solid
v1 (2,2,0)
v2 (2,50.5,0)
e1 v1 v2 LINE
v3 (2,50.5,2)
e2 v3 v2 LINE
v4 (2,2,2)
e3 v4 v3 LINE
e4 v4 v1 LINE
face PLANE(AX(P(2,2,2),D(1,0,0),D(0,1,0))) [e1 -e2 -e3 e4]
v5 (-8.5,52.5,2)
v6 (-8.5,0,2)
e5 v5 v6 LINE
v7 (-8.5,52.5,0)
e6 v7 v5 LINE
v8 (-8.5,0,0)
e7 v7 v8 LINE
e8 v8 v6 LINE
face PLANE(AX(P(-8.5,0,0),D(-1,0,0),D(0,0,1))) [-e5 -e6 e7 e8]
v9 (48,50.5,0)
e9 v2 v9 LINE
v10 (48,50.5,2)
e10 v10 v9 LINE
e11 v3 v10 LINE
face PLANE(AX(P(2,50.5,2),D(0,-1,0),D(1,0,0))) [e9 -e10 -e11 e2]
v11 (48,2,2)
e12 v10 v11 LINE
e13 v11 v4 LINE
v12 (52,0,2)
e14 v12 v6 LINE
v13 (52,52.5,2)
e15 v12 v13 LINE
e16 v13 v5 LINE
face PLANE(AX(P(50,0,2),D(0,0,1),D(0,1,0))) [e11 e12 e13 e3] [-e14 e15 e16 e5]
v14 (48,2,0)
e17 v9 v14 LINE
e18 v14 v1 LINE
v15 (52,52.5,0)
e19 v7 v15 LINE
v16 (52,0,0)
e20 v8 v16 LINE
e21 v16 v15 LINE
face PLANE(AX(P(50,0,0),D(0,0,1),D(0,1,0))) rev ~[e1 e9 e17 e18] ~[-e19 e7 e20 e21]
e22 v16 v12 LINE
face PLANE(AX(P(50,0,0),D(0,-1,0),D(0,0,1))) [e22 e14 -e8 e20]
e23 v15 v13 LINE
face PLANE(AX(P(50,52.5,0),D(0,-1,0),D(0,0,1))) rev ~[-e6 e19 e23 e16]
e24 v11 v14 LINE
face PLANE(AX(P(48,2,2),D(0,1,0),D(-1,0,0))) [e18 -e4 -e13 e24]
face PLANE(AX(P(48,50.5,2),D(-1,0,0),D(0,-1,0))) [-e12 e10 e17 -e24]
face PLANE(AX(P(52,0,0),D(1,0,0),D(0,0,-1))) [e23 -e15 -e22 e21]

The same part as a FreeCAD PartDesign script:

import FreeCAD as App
import Part
import Sketcher
Q = App.Units.Quantity

doc = App.newDocument("Part")
body = doc.addObject("PartDesign::Body", "Body")

# Sketch on XY plane
sketch1 = body.newObject("Sketcher::SketchObject", "Sketch")
sketch1.AttachmentSupport = (doc.getObject("XY_Plane"), [""])
sketch1.MapMode = "FlatFace"
sketch1.addGeometry(Part.LineSegment(App.Vector(0, 52, 0), App.Vector(0, 0, 0)), False)
sketch1.addGeometry(Part.LineSegment(App.Vector(0, 0, 0), App.Vector(50, 0, 0)), False)
sketch1.addGeometry(Part.LineSegment(App.Vector(50, 0, 0), App.Vector(50, 52, 0)), False)
sketch1.addGeometry(Part.LineSegment(App.Vector(50, 52, 0), App.Vector(0, 52, 0)), False)
sketch1.addConstraint(Sketcher.Constraint("Coincident", 0, 2, 1, 1))
sketch1.addConstraint(Sketcher.Constraint("Coincident", 1, 2, 2, 1))
sketch1.addConstraint(Sketcher.Constraint("Coincident", 2, 2, 3, 1))
sketch1.addConstraint(Sketcher.Constraint("Coincident", 3, 2, 0, 1))
sketch1.addConstraint(Sketcher.Constraint("Vertical", 0))
sketch1.addConstraint(Sketcher.Constraint("Horizontal", 1))
sketch1.addConstraint(Sketcher.Constraint("Vertical", 2))
sketch1.addConstraint(Sketcher.Constraint("Horizontal", 3))
sketch1.addConstraint(Sketcher.Constraint("Coincident", 0, 2, -1, 1))
sketch1.addConstraint(Sketcher.Constraint("DistanceX", 1, 1, 1, 2, Q("50 mm")))
sketch1.addConstraint(Sketcher.Constraint("DistanceY", 0, 2, 0, 1, Q("52.5 mm")))
pad1 = body.newObject("PartDesign::Pad", "Pad")
pad1.Profile = sketch1
pad1.Length = 2

# Sketch on XY plane
sketch2 = body.newObject("Sketcher::SketchObject", "Sketch001")
sketch2.AttachmentSupport = (doc.getObject("XY_Plane"), [""])
sketch2.MapMode = "FlatFace"
sketch2.AttachmentOffset = App.Placement(App.Vector(0, 0, 2), App.Rotation())
sketch2.addGeometry(Part.LineSegment(App.Vector(48, 50, 0), App.Vector(2, 50, 0)), False)
sketch2.addGeometry(Part.LineSegment(App.Vector(2, 50, 0), App.Vector(2, 2, 0)), False)
sketch2.addGeometry(Part.LineSegment(App.Vector(2, 2, 0), App.Vector(48, 2, 0)), False)
sketch2.addGeometry(Part.LineSegment(App.Vector(48, 2, 0), App.Vector(48, 50, 0)), False)
sketch2.addConstraint(Sketcher.Constraint("Coincident", 0, 2, 1, 1))
sketch2.addConstraint(Sketcher.Constraint("Coincident", 1, 2, 2, 1))
sketch2.addConstraint(Sketcher.Constraint("Coincident", 2, 2, 3, 1))
sketch2.addConstraint(Sketcher.Constraint("Coincident", 3, 2, 0, 1))
sketch2.addConstraint(Sketcher.Constraint("Horizontal", 0))
sketch2.addConstraint(Sketcher.Constraint("Vertical", 1))
sketch2.addConstraint(Sketcher.Constraint("Horizontal", 2))
sketch2.addConstraint(Sketcher.Constraint("Vertical", 3))
sketch2.addConstraint(Sketcher.Constraint("DistanceX", 0, 2, 0, 1, Q("46 mm")))
sketch2.addConstraint(Sketcher.Constraint("DistanceY", 1, 2, 1, 1, Q("48.5 mm")))
sketch2.addConstraint(Sketcher.Constraint("DistanceX", -1, 1, 0, 2, Q("2 mm")))
sketch2.addConstraint(Sketcher.Constraint("DistanceY", -1, 1, 1, 2, Q("2 mm")))
pocket1 = body.newObject("PartDesign::Pocket", "Pocket")
pocket1.Profile = sketch2
pocket1.Length = 10

# Sketch on YZ plane
sketch3 = body.newObject("Sketcher::SketchObject", "Sketch002")
sketch3.AttachmentSupport = (doc.getObject("YZ_Plane"), [""])
sketch3.MapMode = "FlatFace"
sketch3.addGeometry(Part.LineSegment(App.Vector(52.5, 2, 0), App.Vector(52.5, 0, 0)), False)
sketch3.addGeometry(Part.LineSegment(App.Vector(52.5, 0, 0), App.Vector(0, 0, 0)), False)
sketch3.addGeometry(Part.LineSegment(App.Vector(0, 0, 0), App.Vector(0, 2, 0)), False)
sketch3.addGeometry(Part.LineSegment(App.Vector(0, 2, 0), App.Vector(52.5, 2, 0)), False)
sketch3.addConstraint(Sketcher.Constraint("Coincident", 0, 2, 1, 1))
sketch3.addConstraint(Sketcher.Constraint("Coincident", 1, 2, 2, 1))
sketch3.addConstraint(Sketcher.Constraint("Coincident", 2, 2, 3, 1))
sketch3.addConstraint(Sketcher.Constraint("Coincident", 3, 2, 0, 1))
sketch3.addConstraint(Sketcher.Constraint("Vertical", 0))
sketch3.addConstraint(Sketcher.Constraint("Horizontal", 1))
sketch3.addConstraint(Sketcher.Constraint("Vertical", 2))
sketch3.addConstraint(Sketcher.Constraint("Horizontal", 3))
sketch3.addConstraint(Sketcher.Constraint("Coincident", 1, 2, -1, 1))
sketch3.addConstraint(Sketcher.Constraint("DistanceY", 0, 2, 0, 1, Q("2 mm")))
sketch3.addConstraint(Sketcher.Constraint("DistanceX", 1, 2, 1, 1, Q("52.5 mm")))
pad2 = body.newObject("PartDesign::Pad", "Pad001")
pad2.Profile = sketch3
pad2.Length = 8.5
pad2.Reversed = True

# Sketch on YZ plane
sketch4 = body.newObject("Sketcher::SketchObject", "Sketch003")
sketch4.AttachmentSupport = (doc.getObject("YZ_Plane"), [""])
sketch4.MapMode = "FlatFace"
sketch4.AttachmentOffset = App.Placement(App.Vector(0, 0, 50), App.Rotation())
sketch4.addGeometry(Part.LineSegment(App.Vector(0, 2, 0), App.Vector(0, 0, 0)), False)
sketch4.addGeometry(Part.LineSegment(App.Vector(0, 0, 0), App.Vector(52.5, 0, 0)), False)
sketch4.addGeometry(Part.LineSegment(App.Vector(52.5, 0, 0), App.Vector(52.5, 2, 0)), False)
sketch4.addGeometry(Part.LineSegment(App.Vector(52.5, 2, 0), App.Vector(0, 2, 0)), False)
sketch4.addConstraint(Sketcher.Constraint("Coincident", 0, 2, 1, 1))
sketch4.addConstraint(Sketcher.Constraint("Coincident", 1, 2, 2, 1))
sketch4.addConstraint(Sketcher.Constraint("Coincident", 2, 2, 3, 1))
sketch4.addConstraint(Sketcher.Constraint("Coincident", 3, 2, 0, 1))
sketch4.addConstraint(Sketcher.Constraint("Vertical", 0))
sketch4.addConstraint(Sketcher.Constraint("Horizontal", 1))
sketch4.addConstraint(Sketcher.Constraint("Vertical", 2))
sketch4.addConstraint(Sketcher.Constraint("Horizontal", 3))
sketch4.addConstraint(Sketcher.Constraint("Coincident", 0, 2, -1, 1))
sketch4.addConstraint(Sketcher.Constraint("DistanceY", 0, 2, 0, 1, Q("2 mm")))
sketch4.addConstraint(Sketcher.Constraint("DistanceX", 1, 1, 1, 2, Q("52.5 mm")))
pad3 = body.newObject("PartDesign::Pad", "Pad002")
pad3.Profile = sketch4
pad3.Length = 2

doc.recompute()
